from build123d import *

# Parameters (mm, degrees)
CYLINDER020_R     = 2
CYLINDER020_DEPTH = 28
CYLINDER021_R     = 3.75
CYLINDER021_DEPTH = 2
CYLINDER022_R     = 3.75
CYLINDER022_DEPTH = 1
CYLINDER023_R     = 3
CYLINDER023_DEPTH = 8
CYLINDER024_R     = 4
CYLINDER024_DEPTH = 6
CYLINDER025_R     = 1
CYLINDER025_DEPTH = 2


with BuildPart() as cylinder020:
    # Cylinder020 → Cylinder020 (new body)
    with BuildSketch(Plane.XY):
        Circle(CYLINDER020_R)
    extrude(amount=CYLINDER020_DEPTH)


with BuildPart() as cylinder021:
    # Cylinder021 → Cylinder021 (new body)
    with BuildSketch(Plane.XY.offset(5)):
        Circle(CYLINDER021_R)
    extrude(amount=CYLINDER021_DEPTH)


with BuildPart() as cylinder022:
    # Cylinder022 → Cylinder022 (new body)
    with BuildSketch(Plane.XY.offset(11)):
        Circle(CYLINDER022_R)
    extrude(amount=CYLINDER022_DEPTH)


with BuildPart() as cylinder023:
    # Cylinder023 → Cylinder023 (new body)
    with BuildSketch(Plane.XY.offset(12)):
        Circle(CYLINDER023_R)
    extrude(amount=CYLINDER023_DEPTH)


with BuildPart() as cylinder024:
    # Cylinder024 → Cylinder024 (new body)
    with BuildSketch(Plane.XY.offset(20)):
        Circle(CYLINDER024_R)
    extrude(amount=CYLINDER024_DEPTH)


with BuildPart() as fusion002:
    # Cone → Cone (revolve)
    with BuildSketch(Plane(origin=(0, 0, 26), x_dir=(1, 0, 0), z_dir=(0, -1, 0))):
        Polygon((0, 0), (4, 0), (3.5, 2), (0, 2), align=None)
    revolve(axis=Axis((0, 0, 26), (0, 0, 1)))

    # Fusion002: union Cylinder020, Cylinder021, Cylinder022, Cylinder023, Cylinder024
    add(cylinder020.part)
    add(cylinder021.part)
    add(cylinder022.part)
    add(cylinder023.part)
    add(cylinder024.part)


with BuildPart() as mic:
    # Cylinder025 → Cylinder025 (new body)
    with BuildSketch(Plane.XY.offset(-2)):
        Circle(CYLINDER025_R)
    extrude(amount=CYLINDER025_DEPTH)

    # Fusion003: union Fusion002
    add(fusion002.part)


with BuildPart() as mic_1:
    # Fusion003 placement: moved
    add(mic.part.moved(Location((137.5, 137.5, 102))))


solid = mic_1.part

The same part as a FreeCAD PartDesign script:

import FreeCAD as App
import Part
import Sketcher
Q = App.Units.Quantity


def add_polygon(sketch, points):
    """Adds a closed chain of lines whose ends are joined by coincident constraints."""
    first, n = sketch.GeometryCount, len(points)
    for a, b in zip(points, points[1:] + points[:1]):
        sketch.addGeometry(Part.LineSegment(App.Vector(*a, 0), App.Vector(*b, 0)), False)
    for i in range(n):
        sketch.addConstraint(Sketcher.Constraint("Coincident", first + i, 2, first + (i + 1) % n, 1))

doc = App.newDocument("Part")
body = doc.addObject("PartDesign::Body", "Body")

# Sketch on XY plane
sketch1 = body.newObject("Sketcher::SketchObject", "Sketch")
sketch1.AttachmentSupport = (doc.getObject("XY_Plane"), [""])
sketch1.MapMode = "FlatFace"
sketch1.addGeometry(Part.Circle(App.Vector(0, 0, 0), App.Vector(0, 0, 1), 2), False)
sketch1.addConstraint([
    Sketcher.Constraint("Coincident", 0, 3, -1, 1),
    Sketcher.Constraint("Diameter", 0, Q("4 mm")),
])
pad1 = body.newObject("PartDesign::Pad", "Pad")
pad1.Profile = sketch1
pad1.Length = 28
body2 = doc.addObject("PartDesign::Body", "Body001")

# Sketch on XY plane
sketch2 = body2.newObject("Sketcher::SketchObject", "Sketch001")
sketch2.AttachmentSupport = (doc.getObject("XY_Plane001"), [""])
sketch2.MapMode = "FlatFace"
sketch2.AttachmentOffset = App.Placement(App.Vector(0, 0, 5), App.Rotation())
sketch2.addGeometry(Part.Circle(App.Vector(0, 0, 0), App.Vector(0, 0, 1), 3.8), False)
sketch2.addConstraint([
    Sketcher.Constraint("Coincident", 0, 3, -1, 1),
    Sketcher.Constraint("Diameter", 0, Q("7.5 mm")),
])
pad2 = body2.newObject("PartDesign::Pad", "Pad001")
pad2.Profile = sketch2
pad2.Length = 2
body3 = doc.addObject("PartDesign::Body", "Body002")

# Sketch on XY plane
sketch3 = body3.newObject("Sketcher::SketchObject", "Sketch002")
sketch3.AttachmentSupport = (doc.getObject("XY_Plane002"), [""])
sketch3.MapMode = "FlatFace"
sketch3.AttachmentOffset = App.Placement(App.Vector(0, 0, 11), App.Rotation())
sketch3.addGeometry(Part.Circle(App.Vector(0, 0, 0), App.Vector(0, 0, 1), 3.8), False)
sketch3.addConstraint([
    Sketcher.Constraint("Coincident", 0, 3, -1, 1),
    Sketcher.Constraint("Diameter", 0, Q("7.5 mm")),
])
pad3 = body3.newObject("PartDesign::Pad", "Pad002")
pad3.Profile = sketch3
pad3.Length = 1
body4 = doc.addObject("PartDesign::Body", "Body003")

# Sketch on XY plane
sketch4 = body4.newObject("Sketcher::SketchObject", "Sketch003")
sketch4.AttachmentSupport = (doc.getObject("XY_Plane003"), [""])
sketch4.MapMode = "FlatFace"
sketch4.AttachmentOffset = App.Placement(App.Vector(0, 0, 12), App.Rotation())
sketch4.addGeometry(Part.Circle(App.Vector(0, 0, 0), App.Vector(0, 0, 1), 3), False)
sketch4.addConstraint([
    Sketcher.Constraint("Coincident", 0, 3, -1, 1),
    Sketcher.Constraint("Diameter", 0, Q("6 mm")),
])
pad4 = body4.newObject("PartDesign::Pad", "Pad003")
pad4.Profile = sketch4
pad4.Length = 8
body5 = doc.addObject("PartDesign::Body", "Body004")

# Sketch on XY plane
sketch5 = body5.newObject("Sketcher::SketchObject", "Sketch004")
sketch5.AttachmentSupport = (doc.getObject("XY_Plane004"), [""])
sketch5.MapMode = "FlatFace"
sketch5.AttachmentOffset = App.Placement(App.Vector(0, 0, 20), App.Rotation())
sketch5.addGeometry(Part.Circle(App.Vector(0, 0, 0), App.Vector(0, 0, 1), 4), False)
sketch5.addConstraint([
    Sketcher.Constraint("Coincident", 0, 3, -1, 1),
    Sketcher.Constraint("Diameter", 0, Q("8 mm")),
])
pad5 = body5.newObject("PartDesign::Pad", "Pad004")
pad5.Profile = sketch5
pad5.Length = 6
body6 = doc.addObject("PartDesign::Body", "Body005")

# Sketch on XZ plane
sketch6 = body6.newObject("Sketcher::SketchObject", "Sketch005")
sketch6.AttachmentSupport = (doc.getObject("XZ_Plane005"), [""])
sketch6.MapMode = "FlatFace"
add_polygon(sketch6, [(0, 26), (4, 26), (3.5, 28), (0, 28)])  # lines 0-3
sketch6.addConstraint([
    Sketcher.Constraint("Horizontal", 0),
    Sketcher.Constraint("Horizontal", 2),
    Sketcher.Constraint("Vertical", 3),
    Sketcher.Constraint("PointOnObject", 2, 2, -2),
    Sketcher.Constraint("DistanceX", 0, 1, 0, 2, Q("4 mm")),
    Sketcher.Constraint("DistanceY", 3, 2, 3, 1, Q("2 mm")),
    Sketcher.Constraint("DistanceX", 2, 2, 2, 1, Q("3.5 mm")),
    Sketcher.Constraint("DistanceY", -1, 1, 0, 2, Q("26 mm")),
])
revolution = body6.newObject("PartDesign::Revolution", "Revolution")
revolution.Profile = sketch6
revolution.ReferenceAxis = (sketch6, ["V_Axis"])
revolution.Angle = 360
doc.recompute()

boolean = body6.newObject("PartDesign::Boolean", "Boolean")
boolean.Type = "Fuse"
boolean.addObjects([body])
doc.recompute()

boolean2 = body6.newObject("PartDesign::Boolean", "Boolean001")
boolean2.Type = "Fuse"
boolean2.addObjects([body2])
doc.recompute()

boolean3 = body6.newObject("PartDesign::Boolean", "Boolean002")
boolean3.Type = "Fuse"
boolean3.addObjects([body3])
doc.recompute()

boolean4 = body6.newObject("PartDesign::Boolean", "Boolean003")
boolean4.Type = "Fuse"
boolean4.addObjects([body4])
doc.recompute()

boolean5 = body6.newObject("PartDesign::Boolean", "Boolean004")
boolean5.Type = "Fuse"
boolean5.addObjects([body5])
body7 = doc.addObject("PartDesign::Body", "Body006")

# Sketch on XY plane
sketch7 = body7.newObject("Sketcher::SketchObject", "Sketch006")
sketch7.AttachmentSupport = (doc.getObject("XY_Plane006"), [""])
sketch7.MapMode = "FlatFace"
sketch7.AttachmentOffset = App.Placement(App.Vector(0, 0, -2), App.Rotation())
sketch7.addGeometry(Part.Circle(App.Vector(0, 0, 0), App.Vector(0, 0, 1), 1), False)
sketch7.addConstraint([
    Sketcher.Constraint("Coincident", 0, 3, -1, 1),
    Sketcher.Constraint("Diameter", 0, Q("2 mm")),
])
pad6 = body7.newObject("PartDesign::Pad", "Pad005")
pad6.Profile = sketch7
pad6.Length = 2
doc.recompute()

boolean6 = body7.newObject("PartDesign::Boolean", "Boolean005")
boolean6.Type = "Fuse"
boolean6.addObjects([body6])
body8 = doc.addObject("PartDesign::Body", "Body007")
doc.recompute()

body7.Placement = App.Placement(App.Vector(137.5, 137.5, 102), App.Rotation(App.Vector(0, 0, 1), 0))
boolean7 = body8.newObject("PartDesign::Boolean", "Boolean006")
boolean7.Type = "Fuse"
boolean7.addObjects([body7])

doc.recompute()
